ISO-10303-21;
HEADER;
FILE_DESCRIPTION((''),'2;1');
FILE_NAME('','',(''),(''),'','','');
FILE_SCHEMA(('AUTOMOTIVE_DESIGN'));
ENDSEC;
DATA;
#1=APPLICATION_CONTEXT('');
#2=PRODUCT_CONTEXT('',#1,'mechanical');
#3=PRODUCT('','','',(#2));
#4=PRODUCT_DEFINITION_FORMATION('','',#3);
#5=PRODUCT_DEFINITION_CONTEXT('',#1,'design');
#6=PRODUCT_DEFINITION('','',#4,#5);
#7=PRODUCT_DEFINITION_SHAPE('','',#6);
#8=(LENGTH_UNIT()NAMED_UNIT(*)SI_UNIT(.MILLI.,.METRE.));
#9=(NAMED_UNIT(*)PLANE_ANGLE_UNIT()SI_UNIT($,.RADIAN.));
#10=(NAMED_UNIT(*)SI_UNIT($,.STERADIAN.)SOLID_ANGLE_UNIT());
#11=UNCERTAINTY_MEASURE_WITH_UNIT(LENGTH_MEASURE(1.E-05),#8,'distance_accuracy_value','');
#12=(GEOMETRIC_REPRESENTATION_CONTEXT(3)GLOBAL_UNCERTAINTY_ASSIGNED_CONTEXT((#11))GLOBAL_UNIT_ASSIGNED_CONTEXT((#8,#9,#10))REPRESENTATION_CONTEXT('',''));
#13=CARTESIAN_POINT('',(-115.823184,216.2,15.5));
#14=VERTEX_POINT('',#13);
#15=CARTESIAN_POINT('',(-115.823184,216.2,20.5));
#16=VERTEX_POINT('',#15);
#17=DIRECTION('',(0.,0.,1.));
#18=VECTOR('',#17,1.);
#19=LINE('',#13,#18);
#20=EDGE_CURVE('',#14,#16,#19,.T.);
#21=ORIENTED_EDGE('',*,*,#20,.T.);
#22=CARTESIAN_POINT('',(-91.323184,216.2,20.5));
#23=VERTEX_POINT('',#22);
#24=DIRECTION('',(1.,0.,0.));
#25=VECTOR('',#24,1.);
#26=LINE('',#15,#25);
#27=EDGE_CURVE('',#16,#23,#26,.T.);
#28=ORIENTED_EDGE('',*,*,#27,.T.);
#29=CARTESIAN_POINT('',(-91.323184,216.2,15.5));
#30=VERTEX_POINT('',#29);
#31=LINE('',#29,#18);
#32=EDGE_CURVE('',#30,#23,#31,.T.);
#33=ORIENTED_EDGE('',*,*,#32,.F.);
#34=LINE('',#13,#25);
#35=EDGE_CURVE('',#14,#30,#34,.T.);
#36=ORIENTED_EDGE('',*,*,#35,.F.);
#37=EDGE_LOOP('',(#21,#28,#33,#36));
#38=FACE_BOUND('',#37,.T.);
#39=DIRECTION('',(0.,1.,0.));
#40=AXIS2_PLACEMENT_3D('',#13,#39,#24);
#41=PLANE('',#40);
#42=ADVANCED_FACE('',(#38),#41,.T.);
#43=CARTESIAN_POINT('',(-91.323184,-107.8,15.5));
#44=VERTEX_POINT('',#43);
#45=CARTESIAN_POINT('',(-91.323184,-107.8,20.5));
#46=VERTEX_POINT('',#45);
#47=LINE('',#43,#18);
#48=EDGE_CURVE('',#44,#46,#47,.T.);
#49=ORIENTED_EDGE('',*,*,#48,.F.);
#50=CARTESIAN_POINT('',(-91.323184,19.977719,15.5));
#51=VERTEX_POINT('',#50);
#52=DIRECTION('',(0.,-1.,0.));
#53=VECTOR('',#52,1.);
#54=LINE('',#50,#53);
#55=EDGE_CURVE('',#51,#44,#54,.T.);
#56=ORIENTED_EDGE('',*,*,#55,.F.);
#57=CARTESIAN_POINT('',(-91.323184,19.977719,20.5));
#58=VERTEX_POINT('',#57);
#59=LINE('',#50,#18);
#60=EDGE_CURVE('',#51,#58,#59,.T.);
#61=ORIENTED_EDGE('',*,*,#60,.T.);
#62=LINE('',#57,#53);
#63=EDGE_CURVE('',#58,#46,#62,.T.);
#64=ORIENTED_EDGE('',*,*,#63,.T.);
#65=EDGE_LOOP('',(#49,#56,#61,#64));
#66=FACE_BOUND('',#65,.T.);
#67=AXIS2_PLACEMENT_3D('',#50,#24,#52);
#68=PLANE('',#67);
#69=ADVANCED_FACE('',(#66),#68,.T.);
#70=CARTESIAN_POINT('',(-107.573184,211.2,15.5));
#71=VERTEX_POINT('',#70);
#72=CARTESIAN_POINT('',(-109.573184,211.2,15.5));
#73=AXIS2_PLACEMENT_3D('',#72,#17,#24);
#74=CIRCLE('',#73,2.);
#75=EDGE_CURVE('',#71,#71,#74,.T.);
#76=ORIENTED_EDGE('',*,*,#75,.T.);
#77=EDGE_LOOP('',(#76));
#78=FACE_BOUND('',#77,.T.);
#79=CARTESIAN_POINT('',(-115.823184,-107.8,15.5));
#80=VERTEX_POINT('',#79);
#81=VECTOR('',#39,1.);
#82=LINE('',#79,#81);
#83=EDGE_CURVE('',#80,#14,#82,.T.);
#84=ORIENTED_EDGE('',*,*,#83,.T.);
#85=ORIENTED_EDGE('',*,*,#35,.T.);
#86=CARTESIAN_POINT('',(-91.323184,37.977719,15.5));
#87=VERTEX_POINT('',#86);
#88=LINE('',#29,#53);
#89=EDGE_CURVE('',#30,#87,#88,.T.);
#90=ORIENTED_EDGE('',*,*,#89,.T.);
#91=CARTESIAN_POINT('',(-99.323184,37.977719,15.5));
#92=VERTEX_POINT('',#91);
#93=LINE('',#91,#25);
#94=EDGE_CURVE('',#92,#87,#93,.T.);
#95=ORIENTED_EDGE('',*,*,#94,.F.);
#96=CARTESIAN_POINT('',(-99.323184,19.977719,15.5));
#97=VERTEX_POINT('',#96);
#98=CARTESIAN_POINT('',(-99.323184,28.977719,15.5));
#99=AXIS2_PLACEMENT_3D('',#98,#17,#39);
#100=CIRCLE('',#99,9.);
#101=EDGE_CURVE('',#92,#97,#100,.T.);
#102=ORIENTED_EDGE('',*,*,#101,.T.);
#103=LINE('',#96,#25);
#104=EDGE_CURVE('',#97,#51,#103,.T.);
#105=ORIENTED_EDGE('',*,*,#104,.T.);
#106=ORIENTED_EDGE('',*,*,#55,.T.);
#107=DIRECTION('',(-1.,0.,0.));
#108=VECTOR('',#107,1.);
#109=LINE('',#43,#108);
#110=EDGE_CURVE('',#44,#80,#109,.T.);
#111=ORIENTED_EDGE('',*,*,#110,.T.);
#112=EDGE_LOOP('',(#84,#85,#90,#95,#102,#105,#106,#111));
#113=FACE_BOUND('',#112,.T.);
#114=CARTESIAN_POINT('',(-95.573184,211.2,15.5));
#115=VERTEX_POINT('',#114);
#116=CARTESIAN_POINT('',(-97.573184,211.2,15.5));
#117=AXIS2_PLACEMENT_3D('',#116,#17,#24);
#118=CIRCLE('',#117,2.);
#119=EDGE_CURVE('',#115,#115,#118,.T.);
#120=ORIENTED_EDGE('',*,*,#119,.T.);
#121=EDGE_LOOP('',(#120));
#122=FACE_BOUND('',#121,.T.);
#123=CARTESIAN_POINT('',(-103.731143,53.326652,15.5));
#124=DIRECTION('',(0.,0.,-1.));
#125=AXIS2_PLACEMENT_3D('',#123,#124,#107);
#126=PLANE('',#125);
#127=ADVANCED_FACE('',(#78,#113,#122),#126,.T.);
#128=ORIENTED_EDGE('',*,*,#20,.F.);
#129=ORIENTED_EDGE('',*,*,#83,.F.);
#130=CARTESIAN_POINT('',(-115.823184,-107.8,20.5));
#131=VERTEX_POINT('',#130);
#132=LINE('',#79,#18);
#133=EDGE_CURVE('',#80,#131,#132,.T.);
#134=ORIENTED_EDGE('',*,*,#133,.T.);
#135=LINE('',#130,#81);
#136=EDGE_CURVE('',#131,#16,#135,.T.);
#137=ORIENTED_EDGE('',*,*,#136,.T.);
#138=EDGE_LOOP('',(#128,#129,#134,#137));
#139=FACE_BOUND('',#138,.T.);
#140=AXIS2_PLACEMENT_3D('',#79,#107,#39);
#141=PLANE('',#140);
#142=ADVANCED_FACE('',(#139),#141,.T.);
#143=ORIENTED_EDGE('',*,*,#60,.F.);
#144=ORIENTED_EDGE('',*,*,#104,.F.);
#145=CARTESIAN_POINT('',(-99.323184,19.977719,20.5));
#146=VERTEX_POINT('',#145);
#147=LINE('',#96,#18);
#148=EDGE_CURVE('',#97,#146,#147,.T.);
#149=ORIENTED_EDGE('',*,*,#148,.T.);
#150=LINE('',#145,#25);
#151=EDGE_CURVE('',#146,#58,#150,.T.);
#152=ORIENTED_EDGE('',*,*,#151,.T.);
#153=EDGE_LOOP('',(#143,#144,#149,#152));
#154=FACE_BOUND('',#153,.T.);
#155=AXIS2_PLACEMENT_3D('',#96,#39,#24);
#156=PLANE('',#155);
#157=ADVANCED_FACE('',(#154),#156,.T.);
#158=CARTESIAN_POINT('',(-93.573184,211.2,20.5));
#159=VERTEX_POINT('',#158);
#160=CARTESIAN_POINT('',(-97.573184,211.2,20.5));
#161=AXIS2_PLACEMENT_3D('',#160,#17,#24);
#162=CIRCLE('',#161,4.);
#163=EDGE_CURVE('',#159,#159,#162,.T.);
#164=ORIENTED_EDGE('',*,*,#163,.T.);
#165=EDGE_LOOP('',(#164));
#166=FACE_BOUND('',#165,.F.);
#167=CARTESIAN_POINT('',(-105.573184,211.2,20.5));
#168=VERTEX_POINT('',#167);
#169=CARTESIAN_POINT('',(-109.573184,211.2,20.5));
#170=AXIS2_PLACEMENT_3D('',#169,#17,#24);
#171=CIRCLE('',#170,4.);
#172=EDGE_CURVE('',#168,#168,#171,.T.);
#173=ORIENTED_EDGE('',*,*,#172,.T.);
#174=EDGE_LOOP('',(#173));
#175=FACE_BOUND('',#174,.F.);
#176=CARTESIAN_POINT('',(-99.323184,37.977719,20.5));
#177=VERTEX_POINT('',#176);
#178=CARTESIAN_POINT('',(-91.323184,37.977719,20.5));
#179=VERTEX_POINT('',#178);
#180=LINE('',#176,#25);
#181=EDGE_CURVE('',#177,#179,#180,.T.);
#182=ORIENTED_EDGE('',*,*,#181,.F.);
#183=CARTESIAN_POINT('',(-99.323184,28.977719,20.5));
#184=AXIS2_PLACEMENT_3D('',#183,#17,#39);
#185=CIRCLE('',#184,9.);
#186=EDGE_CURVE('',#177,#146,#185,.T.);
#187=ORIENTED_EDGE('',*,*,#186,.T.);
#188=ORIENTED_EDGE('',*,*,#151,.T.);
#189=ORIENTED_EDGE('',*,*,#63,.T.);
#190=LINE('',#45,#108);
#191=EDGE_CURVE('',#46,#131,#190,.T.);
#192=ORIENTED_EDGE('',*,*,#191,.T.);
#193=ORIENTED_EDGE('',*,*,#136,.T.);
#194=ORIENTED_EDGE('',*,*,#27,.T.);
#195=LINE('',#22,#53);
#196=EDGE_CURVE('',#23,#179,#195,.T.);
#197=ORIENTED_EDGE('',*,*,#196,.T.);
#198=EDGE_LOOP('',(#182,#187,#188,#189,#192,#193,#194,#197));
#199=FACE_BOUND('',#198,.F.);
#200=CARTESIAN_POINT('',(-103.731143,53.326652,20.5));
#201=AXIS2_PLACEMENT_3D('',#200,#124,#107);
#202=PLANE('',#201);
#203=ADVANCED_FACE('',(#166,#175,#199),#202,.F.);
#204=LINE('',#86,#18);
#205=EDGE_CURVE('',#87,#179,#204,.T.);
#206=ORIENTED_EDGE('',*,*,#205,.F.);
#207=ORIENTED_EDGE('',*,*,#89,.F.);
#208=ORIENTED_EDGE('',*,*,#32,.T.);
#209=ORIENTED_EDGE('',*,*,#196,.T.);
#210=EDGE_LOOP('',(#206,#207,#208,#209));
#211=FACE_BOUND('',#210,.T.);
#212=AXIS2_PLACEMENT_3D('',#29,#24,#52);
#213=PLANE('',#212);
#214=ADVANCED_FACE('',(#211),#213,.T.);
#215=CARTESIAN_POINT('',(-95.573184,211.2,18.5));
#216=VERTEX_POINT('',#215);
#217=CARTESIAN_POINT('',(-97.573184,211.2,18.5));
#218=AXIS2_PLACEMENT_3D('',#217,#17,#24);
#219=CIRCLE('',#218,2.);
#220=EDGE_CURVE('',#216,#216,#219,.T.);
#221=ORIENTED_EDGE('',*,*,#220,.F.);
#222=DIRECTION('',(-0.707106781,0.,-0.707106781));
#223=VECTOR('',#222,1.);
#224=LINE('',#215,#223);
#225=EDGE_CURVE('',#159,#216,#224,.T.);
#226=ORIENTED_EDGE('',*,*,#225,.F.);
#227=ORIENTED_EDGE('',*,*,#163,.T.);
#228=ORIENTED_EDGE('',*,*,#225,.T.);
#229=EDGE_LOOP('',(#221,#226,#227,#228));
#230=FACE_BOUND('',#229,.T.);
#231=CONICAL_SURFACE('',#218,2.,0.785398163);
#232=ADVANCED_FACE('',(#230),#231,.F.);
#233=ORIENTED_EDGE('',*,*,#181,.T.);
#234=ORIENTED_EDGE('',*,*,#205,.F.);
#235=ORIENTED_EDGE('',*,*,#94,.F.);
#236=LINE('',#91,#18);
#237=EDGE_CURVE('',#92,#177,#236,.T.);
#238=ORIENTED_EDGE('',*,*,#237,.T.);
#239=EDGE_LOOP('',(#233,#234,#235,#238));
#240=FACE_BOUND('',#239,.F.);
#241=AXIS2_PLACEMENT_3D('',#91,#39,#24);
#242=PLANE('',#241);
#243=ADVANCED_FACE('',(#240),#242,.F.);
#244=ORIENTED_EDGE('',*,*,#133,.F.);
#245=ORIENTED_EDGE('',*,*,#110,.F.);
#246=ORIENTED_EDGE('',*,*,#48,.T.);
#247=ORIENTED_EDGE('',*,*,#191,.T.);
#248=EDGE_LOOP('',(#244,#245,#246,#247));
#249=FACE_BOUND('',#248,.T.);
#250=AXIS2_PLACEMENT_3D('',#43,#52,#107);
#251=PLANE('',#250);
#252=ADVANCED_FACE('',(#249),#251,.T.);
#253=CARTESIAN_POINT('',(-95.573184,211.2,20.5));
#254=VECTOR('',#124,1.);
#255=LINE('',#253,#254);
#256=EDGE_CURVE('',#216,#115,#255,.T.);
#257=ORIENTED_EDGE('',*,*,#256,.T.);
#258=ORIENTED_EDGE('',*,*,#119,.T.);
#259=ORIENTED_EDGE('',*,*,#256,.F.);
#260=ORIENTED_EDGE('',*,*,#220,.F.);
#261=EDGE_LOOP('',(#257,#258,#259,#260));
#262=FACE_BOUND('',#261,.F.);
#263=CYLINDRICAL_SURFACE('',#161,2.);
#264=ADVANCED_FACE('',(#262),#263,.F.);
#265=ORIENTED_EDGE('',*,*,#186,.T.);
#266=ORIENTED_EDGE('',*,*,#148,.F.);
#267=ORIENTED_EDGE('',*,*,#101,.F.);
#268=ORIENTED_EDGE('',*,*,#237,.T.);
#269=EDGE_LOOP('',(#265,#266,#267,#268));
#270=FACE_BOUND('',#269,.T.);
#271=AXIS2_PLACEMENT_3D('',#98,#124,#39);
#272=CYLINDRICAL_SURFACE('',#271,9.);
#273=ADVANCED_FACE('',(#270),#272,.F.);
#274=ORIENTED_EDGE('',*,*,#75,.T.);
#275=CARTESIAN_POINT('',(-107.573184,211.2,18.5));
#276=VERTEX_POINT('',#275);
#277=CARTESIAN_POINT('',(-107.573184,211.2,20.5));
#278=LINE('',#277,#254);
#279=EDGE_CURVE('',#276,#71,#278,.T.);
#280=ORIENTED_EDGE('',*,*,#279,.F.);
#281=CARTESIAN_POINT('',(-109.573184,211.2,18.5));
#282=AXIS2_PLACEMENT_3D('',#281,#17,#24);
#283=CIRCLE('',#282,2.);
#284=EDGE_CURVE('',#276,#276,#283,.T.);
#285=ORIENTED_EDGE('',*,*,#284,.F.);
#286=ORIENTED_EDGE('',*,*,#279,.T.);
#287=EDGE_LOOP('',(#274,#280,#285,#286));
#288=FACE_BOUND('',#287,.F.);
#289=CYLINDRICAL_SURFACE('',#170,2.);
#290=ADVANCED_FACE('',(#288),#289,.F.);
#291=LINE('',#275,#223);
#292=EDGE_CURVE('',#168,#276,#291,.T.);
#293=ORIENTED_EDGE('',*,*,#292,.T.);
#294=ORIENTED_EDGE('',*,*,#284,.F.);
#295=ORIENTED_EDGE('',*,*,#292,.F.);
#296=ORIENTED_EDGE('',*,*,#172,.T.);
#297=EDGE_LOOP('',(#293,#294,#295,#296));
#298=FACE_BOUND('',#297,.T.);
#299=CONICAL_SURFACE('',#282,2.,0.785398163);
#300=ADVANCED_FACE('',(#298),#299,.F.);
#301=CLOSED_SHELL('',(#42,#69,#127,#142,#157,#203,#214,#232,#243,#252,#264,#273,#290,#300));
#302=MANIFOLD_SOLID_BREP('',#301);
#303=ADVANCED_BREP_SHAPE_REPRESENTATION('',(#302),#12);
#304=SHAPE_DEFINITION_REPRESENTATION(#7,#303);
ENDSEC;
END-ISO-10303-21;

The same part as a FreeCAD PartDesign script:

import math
import FreeCAD as App
import Part
import Sketcher

V = App.Vector


def edges_at(feature, points):
    """Names of the edges that pass closest to the given points."""
    edges = feature.Shape.Edges
    near = lambda p: min(range(len(edges)), key=lambda i: edges[i].distToShape(Part.Vertex(*p))[0])
    return sorted({f"Edge{near(p) + 1}" for p in points})

doc = App.newDocument("Part")
body = doc.addObject("PartDesign::Body", "Body")

# Sketch on XY plane
sketch1 = doc.addObject("Sketcher::SketchObject", "Sketch")
body.addObject(sketch1)
sketch1.AttachmentSupport = (doc.XY_Plane, [""])
sketch1.MapMode = "FlatFace"
sketch1.addGeometry(Part.LineSegment(V(9, -108, 0), V(9, 20, 0)), False)
sketch1.addGeometry(Part.LineSegment(V(9, 20, 0), V(1, 20, 0)), False)
sketch1.addGeometry(Part.ArcOfCircle(Part.Circle(V(1, 29, 0), V(0, 0, 1), 9), math.radians(90), math.radians(270)), False)
sketch1.addGeometry(Part.LineSegment(V(1, 38, 0), V(9, 38, 0)), False)
sketch1.addGeometry(Part.LineSegment(V(9, 38, 0), V(9, 216, 0)), False)
sketch1.addGeometry(Part.LineSegment(V(9, 216, 0), V(-16, 216, 0)), False)
sketch1.addGeometry(Part.LineSegment(V(-16, 216, 0), V(-16, -108, 0)), False)
sketch1.addGeometry(Part.LineSegment(V(-16, -108, 0), V(9, -108, 0)), False)
sketch1.addConstraint(Sketcher.Constraint("Coincident", 0, 2, 1, 1))
sketch1.addConstraint(Sketcher.Constraint("Tangent", 1, 2, 2, 2))
sketch1.addConstraint(Sketcher.Constraint("Tangent", 2, 1, 3, 1))
sketch1.addConstraint(Sketcher.Constraint("Coincident", 3, 2, 4, 1))
sketch1.addConstraint(Sketcher.Constraint("Coincident", 4, 2, 5, 1))
sketch1.addConstraint(Sketcher.Constraint("Coincident", 5, 2, 6, 1))
sketch1.addConstraint(Sketcher.Constraint("Coincident", 6, 2, 7, 1))
sketch1.addConstraint(Sketcher.Constraint("Coincident", 7, 2, 0, 1))
sketch1.addConstraint(Sketcher.Constraint("Vertical", 0))
sketch1.addConstraint(Sketcher.Constraint("Horizontal", 1))
sketch1.addConstraint(Sketcher.Constraint("Horizontal", 3))
sketch1.addConstraint(Sketcher.Constraint("Vertical", 4))
sketch1.addConstraint(Sketcher.Constraint("Horizontal", 5))
sketch1.addConstraint(Sketcher.Constraint("Vertical", 6))
sketch1.addConstraint(Sketcher.Constraint("Horizontal", 7))
sketch1.addConstraint(Sketcher.Constraint("Vertical", 0, 2, 3, 2))
sketch1.addConstraint(Sketcher.Constraint("Radius", 2, 9.0))
sketch1.addConstraint(Sketcher.Constraint("DistanceX", 1, 2, 1, 1, 8.0))
sketch1.addConstraint(Sketcher.Constraint("DistanceY", 6, 2, 6, 1, 324.0))
sketch1.addConstraint(Sketcher.Constraint("DistanceX", 5, 2, 5, 1, 24.5))
sketch1.addConstraint(Sketcher.Constraint("DistanceY", -1, 1, 4, 2, 216.2))
sketch1.addConstraint(Sketcher.Constraint("DistanceY", 0, 1, 0, 2, 127.777719))
sketch1.addConstraint(Sketcher.Constraint("DistanceX", -1, 1, 2, 3, 0.676816))
pad1 = doc.addObject("PartDesign::Pad", "Pad")
body.addObject(pad1)
pad1.Profile = sketch1
pad1.Length = 5

# Sketch on XY plane
sketch2 = doc.addObject("Sketcher::SketchObject", "Sketch001")
body.addObject(sketch2)
sketch2.AttachmentSupport = (doc.XY_Plane, [""])
sketch2.MapMode = "FlatFace"
sketch2.AttachmentOffset = App.Placement(V(0, 0, 5), App.Rotation())
sketch2.addGeometry(Part.Circle(V(-9.6, 211.2, 0), V(0, 0, 1), 2), False)
sketch2.addGeometry(Part.Circle(V(2.4, 211.2, 0), V(0, 0, 1), 2), False)
sketch2.addConstraint(Sketcher.Constraint("Equal", 0, 1))
sketch2.addConstraint(Sketcher.Constraint("Horizontal", 0, 3, 1, 3))
sketch2.addConstraint(Sketcher.Constraint("Diameter", 0, 4.0))
sketch2.addConstraint(Sketcher.Constraint("DistanceX", 0, 3, 1, 3, 12.0))
sketch2.addConstraint(Sketcher.Constraint("DistanceY", -1, 1, 0, 3, 211.2))
sketch2.addConstraint(Sketcher.Constraint("DistanceX", 0, 3, -1, 1, 9.573184))
pocket1 = doc.addObject("PartDesign::Pocket", "Pocket")
body.addObject(pocket1)
pocket1.Profile = sketch2
pocket1.Type = "ThroughAll"
doc.recompute()

chamfer = doc.addObject("PartDesign::Chamfer", "Chamfer")
body.addObject(chamfer)
chamfer.Base = (pocket1, edges_at(pocket1, [(-11.573, 211.2, 5), (0.427, 211.2, 5)]))
chamfer.Size = 2
body2 = doc.addObject("PartDesign::Body", "Body001")
doc.recompute()

body.Placement = App.Placement(V(-100, 0, 15.5), App.Rotation(V(0, 0, 1), 0))
boolean = doc.addObject("PartDesign::Boolean", "Boolean")
body2.addObject(boolean)
boolean.Type = "Fuse"
boolean.addObjects([body])

doc.recompute()
